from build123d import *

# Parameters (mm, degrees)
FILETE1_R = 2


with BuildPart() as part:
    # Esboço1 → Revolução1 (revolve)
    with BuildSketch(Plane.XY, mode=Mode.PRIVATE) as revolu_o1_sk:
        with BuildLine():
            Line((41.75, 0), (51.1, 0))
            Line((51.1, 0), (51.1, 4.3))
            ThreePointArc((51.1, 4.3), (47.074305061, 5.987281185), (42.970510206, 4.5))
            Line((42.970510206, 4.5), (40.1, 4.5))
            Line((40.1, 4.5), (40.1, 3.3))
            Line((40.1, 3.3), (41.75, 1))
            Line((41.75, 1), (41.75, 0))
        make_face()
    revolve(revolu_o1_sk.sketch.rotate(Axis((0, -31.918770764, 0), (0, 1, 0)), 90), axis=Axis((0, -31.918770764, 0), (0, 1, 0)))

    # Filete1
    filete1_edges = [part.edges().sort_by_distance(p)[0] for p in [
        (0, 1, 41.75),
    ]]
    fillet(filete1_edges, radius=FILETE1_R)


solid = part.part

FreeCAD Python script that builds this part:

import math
import FreeCAD as App
import Part
import Sketcher

V = App.Vector
Q = App.Units.Quantity


def edges_at(feature, points):
    """Names of the edges that pass closest to the given points."""
    edges = feature.Shape.Edges
    near = lambda p: min(range(len(edges)), key=lambda i: edges[i].distToShape(Part.Vertex(*p))[0])
    return sorted({f"Edge{near(p) + 1}" for p in points})

doc = App.newDocument("Part")
body = doc.addObject("PartDesign::Body", "Body")

# Sketch on XY plane
sketch1 = body.newObject("Sketcher::SketchObject", "Sketch")
sketch1.AttachmentSupport = (doc.getObject("XY_Plane"), [""])
sketch1.MapMode = "FlatFace"
sketch1.addGeometry([
    Part.LineSegment(V(41.8, 0, 0), V(51.1, 0, 0)),  # 0
    Part.LineSegment(V(51.1, 0, 0), V(51.1, 4.3, 0)),  # 1
    Part.ArcOfCircle(Part.Circle(V(46.9, 0, 0), V(0, 0, 1), 6), math.radians(46), math.radians(131)),  # 2
    Part.LineSegment(V(43, 4.5, 0), V(40.1, 4.5, 0)),  # 3
    Part.LineSegment(V(40.1, 4.5, 0), V(40.1, 3.3, 0)),  # 4
    Part.LineSegment(V(40.1, 3.3, 0), V(41.8, 1, 0)),  # 5
    Part.LineSegment(V(41.8, 1, 0), V(41.8, 0, 0)),  # 6
], False)
sketch1.addConstraint([
    Sketcher.Constraint("Coincident", 0, 2, 1, 1),
    Sketcher.Constraint("Coincident", 1, 2, 2, 1),
    Sketcher.Constraint("Coincident", 2, 2, 3, 1),
    Sketcher.Constraint("Coincident", 3, 2, 4, 1),
    Sketcher.Constraint("Coincident", 4, 2, 5, 1),
    Sketcher.Constraint("Coincident", 5, 2, 6, 1),
    Sketcher.Constraint("Coincident", 6, 2, 0, 1),
    Sketcher.Constraint("Horizontal", 0),
    Sketcher.Constraint("Vertical", 1),
    Sketcher.Constraint("Horizontal", 3),
    Sketcher.Constraint("Vertical", 4),
    Sketcher.Constraint("Vertical", 6),
    Sketcher.Constraint("PointOnObject", 0, 2, -1),
    Sketcher.Constraint("Radius", 2, Q("6 mm")),
    Sketcher.Constraint("DistanceY", 6, 2, 6, 1, Q("1 mm")),
    Sketcher.Constraint("DistanceY", 1, 1, 1, 2, Q("4.3 mm")),
    Sketcher.Constraint("DistanceY", 4, 2, 4, 1, Q("1.2 mm")),
    Sketcher.Constraint("DistanceX", 3, 2, 1, 2, Q("11 mm")),
    Sketcher.Constraint("DistanceY", 4, 2, 1, 2, Q("1 mm")),
    Sketcher.Constraint("DistanceX", 0, 1, 0, 2, Q("9.35 mm")),
    Sketcher.Constraint("DistanceX", -1, 1, 0, 2, Q("51.1 mm")),
    Sketcher.Constraint("DistanceX", 3, 2, 3, 1, Q("2.87051 mm")),
])
revolution = body.newObject("PartDesign::Revolution", "Revolution")
revolution.Profile = sketch1
revolution.ReferenceAxis = (sketch1, ["V_Axis"])
revolution.Angle = 360
doc.recompute()

fillet = body.newObject("PartDesign::Fillet", "Fillet")
fillet.Base = (revolution, edges_at(revolution, [(0, 1, 41.75)]))
fillet.Radius = 2

doc.recompute()
